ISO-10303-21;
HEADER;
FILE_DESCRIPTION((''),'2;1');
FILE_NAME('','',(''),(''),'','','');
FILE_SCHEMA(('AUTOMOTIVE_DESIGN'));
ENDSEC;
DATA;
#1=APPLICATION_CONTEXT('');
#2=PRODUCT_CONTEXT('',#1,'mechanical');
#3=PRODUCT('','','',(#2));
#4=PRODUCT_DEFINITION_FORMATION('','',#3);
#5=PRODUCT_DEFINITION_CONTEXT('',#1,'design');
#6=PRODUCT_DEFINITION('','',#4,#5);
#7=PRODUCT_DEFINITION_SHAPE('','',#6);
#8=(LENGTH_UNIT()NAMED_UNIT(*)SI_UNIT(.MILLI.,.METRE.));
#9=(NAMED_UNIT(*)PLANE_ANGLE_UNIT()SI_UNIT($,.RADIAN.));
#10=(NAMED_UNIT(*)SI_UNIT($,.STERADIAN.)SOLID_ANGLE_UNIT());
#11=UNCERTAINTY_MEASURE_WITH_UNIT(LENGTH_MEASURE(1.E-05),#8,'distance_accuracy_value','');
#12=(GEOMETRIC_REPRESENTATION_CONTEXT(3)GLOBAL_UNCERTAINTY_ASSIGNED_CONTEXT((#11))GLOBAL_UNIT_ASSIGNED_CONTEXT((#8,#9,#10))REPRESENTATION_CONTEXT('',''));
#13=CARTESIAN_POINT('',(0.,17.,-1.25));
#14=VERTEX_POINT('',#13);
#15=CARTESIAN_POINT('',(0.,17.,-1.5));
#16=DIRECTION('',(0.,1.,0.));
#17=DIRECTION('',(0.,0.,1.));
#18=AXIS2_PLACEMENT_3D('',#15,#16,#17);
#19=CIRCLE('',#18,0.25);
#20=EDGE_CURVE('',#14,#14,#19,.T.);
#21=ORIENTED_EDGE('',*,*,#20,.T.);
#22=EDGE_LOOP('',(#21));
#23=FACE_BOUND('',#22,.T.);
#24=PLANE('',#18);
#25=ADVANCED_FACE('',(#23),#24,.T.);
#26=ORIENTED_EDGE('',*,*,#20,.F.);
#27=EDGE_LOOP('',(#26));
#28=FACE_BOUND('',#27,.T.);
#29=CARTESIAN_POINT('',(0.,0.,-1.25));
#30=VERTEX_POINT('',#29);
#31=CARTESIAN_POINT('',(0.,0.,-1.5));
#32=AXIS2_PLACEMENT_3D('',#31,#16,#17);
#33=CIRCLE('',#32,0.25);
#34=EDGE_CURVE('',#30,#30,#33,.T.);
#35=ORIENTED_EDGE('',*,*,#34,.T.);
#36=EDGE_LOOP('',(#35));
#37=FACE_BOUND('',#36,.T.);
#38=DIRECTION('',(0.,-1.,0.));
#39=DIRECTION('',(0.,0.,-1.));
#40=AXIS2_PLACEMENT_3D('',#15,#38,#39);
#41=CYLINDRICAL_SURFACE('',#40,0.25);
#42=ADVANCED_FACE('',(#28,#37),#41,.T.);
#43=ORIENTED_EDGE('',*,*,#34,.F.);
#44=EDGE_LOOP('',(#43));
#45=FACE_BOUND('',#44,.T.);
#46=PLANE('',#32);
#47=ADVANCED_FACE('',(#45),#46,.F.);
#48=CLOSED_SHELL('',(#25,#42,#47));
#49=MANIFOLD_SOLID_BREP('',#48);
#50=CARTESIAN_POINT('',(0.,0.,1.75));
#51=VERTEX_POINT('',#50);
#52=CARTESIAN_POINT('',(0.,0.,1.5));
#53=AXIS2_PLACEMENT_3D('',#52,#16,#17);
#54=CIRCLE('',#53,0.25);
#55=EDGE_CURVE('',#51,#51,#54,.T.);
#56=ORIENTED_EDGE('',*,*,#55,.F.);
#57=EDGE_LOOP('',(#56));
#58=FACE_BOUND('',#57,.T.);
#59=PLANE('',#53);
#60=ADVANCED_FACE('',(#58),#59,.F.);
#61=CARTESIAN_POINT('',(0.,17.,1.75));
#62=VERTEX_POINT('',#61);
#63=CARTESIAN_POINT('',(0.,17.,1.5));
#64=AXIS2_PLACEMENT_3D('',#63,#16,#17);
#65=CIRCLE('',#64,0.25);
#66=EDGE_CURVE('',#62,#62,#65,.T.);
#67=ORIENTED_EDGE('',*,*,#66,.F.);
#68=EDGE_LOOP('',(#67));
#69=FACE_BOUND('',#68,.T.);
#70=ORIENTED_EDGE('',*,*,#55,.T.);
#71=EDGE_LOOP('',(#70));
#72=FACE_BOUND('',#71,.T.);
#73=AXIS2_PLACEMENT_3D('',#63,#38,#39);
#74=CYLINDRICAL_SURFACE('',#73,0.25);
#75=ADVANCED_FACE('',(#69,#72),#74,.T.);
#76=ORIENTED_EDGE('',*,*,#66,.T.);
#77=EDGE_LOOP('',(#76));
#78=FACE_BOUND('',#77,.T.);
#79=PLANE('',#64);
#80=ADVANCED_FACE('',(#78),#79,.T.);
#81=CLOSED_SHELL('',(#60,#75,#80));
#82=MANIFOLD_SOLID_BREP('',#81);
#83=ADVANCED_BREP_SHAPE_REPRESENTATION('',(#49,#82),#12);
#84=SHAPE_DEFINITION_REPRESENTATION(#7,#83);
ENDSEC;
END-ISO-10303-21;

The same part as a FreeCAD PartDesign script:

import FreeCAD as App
import Part
import Sketcher
from FreeCAD import Vector

doc = App.newDocument("Part")
body = doc.addObject("PartDesign::Body", "Body")

# Sketch on XZ plane
sketch1 = body.newObject("Sketcher::SketchObject", "Sketch")
sketch1.AttachmentSupport = (doc.getObject("XZ_Plane"), [""])
sketch1.MapMode = "FlatFace"
sketch1.addGeometry(Part.Circle(Vector(0, 1.5, 0), Vector(0, 0, 1), 0.25), False)
sketch1.addConstraint([
    Sketcher.Constraint("PointOnObject", 0, 3, -2),
    Sketcher.Constraint("Diameter", 0, 0.5),
    Sketcher.Constraint("DistanceY", -1, 1, 0, 3, 1.5),
])
pad1 = body.newObject("PartDesign::Pad", "Pad")
pad1.Profile = sketch1
pad1.Length = 17
pad1.Reversed = True
body2 = doc.addObject("PartDesign::Body", "Body001")

# Sketch on XZ plane
sketch2 = body2.newObject("Sketcher::SketchObject", "Sketch001")
sketch2.AttachmentSupport = (doc.getObject("XZ_Plane001"), [""])
sketch2.MapMode = "FlatFace"
sketch2.addGeometry(Part.Circle(Vector(0, -1.5, 0), Vector(0, 0, 1), 0.25), False)
sketch2.addConstraint([
    Sketcher.Constraint("PointOnObject", 0, 3, -2),
    Sketcher.Constraint("Diameter", 0, 0.5),
    Sketcher.Constraint("DistanceY", 0, 3, -1, 1, 1.5),
])
pad2 = body2.newObject("PartDesign::Pad", "Pad001")
pad2.Profile = sketch2
pad2.Length = 17
pad2.Reversed = True

doc.recompute()
